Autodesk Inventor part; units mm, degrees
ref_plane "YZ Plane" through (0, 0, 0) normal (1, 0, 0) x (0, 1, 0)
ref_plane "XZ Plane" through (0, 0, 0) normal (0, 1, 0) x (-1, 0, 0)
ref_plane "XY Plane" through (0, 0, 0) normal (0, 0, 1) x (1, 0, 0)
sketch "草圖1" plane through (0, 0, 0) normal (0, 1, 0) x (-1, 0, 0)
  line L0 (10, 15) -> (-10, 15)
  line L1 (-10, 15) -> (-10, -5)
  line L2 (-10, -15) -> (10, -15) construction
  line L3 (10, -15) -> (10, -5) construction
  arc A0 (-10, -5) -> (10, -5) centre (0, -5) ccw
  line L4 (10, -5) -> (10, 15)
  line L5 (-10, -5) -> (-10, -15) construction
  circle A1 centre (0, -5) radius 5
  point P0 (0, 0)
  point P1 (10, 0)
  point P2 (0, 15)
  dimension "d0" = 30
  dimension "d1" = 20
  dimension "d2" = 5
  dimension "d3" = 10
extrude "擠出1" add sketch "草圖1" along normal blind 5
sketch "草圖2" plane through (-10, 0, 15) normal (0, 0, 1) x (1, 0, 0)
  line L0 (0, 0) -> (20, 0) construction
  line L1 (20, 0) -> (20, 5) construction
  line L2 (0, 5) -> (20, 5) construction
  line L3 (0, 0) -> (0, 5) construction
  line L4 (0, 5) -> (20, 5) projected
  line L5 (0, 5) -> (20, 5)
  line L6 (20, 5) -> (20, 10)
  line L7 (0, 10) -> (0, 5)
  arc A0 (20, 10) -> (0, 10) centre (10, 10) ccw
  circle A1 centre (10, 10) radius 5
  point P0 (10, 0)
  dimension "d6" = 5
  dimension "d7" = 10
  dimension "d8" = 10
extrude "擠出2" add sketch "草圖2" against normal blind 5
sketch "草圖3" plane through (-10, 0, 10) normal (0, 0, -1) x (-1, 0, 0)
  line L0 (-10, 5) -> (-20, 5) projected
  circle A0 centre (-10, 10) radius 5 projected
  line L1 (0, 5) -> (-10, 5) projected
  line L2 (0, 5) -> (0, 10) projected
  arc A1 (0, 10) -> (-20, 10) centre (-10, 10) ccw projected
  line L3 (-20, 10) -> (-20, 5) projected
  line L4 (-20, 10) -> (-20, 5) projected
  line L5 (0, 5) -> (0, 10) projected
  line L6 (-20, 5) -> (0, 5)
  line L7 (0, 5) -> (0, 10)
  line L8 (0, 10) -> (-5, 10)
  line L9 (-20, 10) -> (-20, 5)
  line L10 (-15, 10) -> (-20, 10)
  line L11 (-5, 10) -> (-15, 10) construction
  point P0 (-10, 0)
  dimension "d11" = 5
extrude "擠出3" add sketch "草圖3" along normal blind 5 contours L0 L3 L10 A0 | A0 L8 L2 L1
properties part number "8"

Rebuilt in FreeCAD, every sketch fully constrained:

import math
import FreeCAD as App
import Part
import Sketcher

V = App.Vector
Q = App.Units.Quantity

doc = App.newDocument("Part")
body = doc.addObject("PartDesign::Body", "Body")

sketch1 = body.newObject("Sketcher::SketchObject", "Sketch")
sketch1.AttachmentSupport = (doc.getObject("XZ_Plane"), [""])
sketch1.MapMode = "FlatFace"
sketch1.addGeometry([
    Part.LineSegment(V(-10, -5, 0), V(-10, 15, 0)),
    Part.LineSegment(V(-10, 15, 0), V(10, 15, 0)),
    Part.LineSegment(V(10, 15, 0), V(10, -5, 0)),
    Part.ArcOfCircle(Part.Circle(V(0, -5, 0), V(0, 0, 1), 10), math.radians(180), math.radians(360)),
    Part.Circle(V(0, -5, 0), V(0, 0, 1), 5),
], False)
sketch1.addConstraint([
    Sketcher.Constraint("Coincident", 0, 2, 1, 1),
    Sketcher.Constraint("Coincident", 1, 2, 2, 1),
    Sketcher.Constraint("Tangent", 2, 2, 3, 2),
    Sketcher.Constraint("Tangent", 3, 1, 0, 1),
    Sketcher.Constraint("Vertical", 0),
    Sketcher.Constraint("Horizontal", 1),
    Sketcher.Constraint("Vertical", 2),
    Sketcher.Constraint("Coincident", 4, 3, 3, 3),
    Sketcher.Constraint("PointOnObject", 3, 3, -2),
    Sketcher.Constraint("Equal", 1, 0),
    Sketcher.Constraint("Diameter", 4, Q("10 mm")),
    Sketcher.Constraint("Radius", 3, Q("10 mm")),
    Sketcher.Constraint("DistanceY", 3, 3, -1, 1, Q("5 mm")),
])
pad1 = body.newObject("PartDesign::Pad", "Pad")
pad1.Profile = sketch1
pad1.Length = 5
pad1.Reversed = True

sketch2 = body.newObject("Sketcher::SketchObject", "Sketch001")
sketch2.AttachmentSupport = (doc.getObject("XY_Plane"), [""])
sketch2.MapMode = "FlatFace"
sketch2.AttachmentOffset = App.Placement(V(0, 0, 15), App.Rotation())
sketch2.addGeometry([
    Part.LineSegment(V(-10, 10, 0), V(-10, 5, 0)),
    Part.LineSegment(V(-10, 5, 0), V(0, 5, 0)),
    Part.LineSegment(V(0, 5, 0), V(10, 5, 0)),
    Part.LineSegment(V(10, 5, 0), V(10, 10, 0)),
    Part.ArcOfCircle(Part.Circle(V(0, 10, 0), V(0, 0, 1), 10), math.radians(0), math.radians(180)),
    Part.Circle(V(0, 10, 0), V(0, 0, 1), 5),
], False)
sketch2.addConstraint([
    Sketcher.Constraint("Coincident", 0, 2, 1, 1),
    Sketcher.Constraint("Coincident", 1, 2, 2, 1),
    Sketcher.Constraint("Coincident", 2, 2, 3, 1),
    Sketcher.Constraint("Tangent", 3, 2, 4, 1),
    Sketcher.Constraint("Tangent", 4, 2, 0, 1),
    Sketcher.Constraint("Vertical", 0),
    Sketcher.Constraint("Horizontal", 1),
    Sketcher.Constraint("Horizontal", 2),
    Sketcher.Constraint("Vertical", 3),
    Sketcher.Constraint("Coincident", 5, 3, 4, 3),
    Sketcher.Constraint("PointOnObject", 4, 3, -2),
    Sketcher.Constraint("PointOnObject", 1, 2, -2),
    Sketcher.Constraint("Diameter", 5, Q("10 mm")),
    Sketcher.Constraint("Radius", 4, Q("10 mm")),
    Sketcher.Constraint("DistanceY", 0, 2, 0, 1, Q("5 mm")),
    Sketcher.Constraint("DistanceY", -1, 1, 4, 3, Q("10 mm")),
])
pad2 = body.newObject("PartDesign::Pad", "Pad001")
pad2.Profile = sketch2
pad2.Length = 5
pad2.Reversed = True

sketch3 = body.newObject("Sketcher::SketchObject", "Sketch002")
sketch3.AttachmentSupport = (doc.getObject("XY_Plane"), [""])
sketch3.MapMode = "FlatFace"
sketch3.AttachmentOffset = App.Placement(V(0, 0, 10), App.Rotation())
sketch3.addGeometry([
    Part.LineSegment(V(10, 5, 0), V(0, 5, 0)),
    Part.ArcOfCircle(Part.Circle(V(0, 10, 0), V(0, 0, 1), 5), math.radians(-90), math.radians(0)),
    Part.LineSegment(V(5, 10, 0), V(10, 10, 0)),
    Part.LineSegment(V(10, 10, 0), V(10, 5, 0)),
    Part.ArcOfCircle(Part.Circle(V(0, 10, 0), V(0, 0, 1), 5), math.radians(180), math.radians(270)),
    Part.LineSegment(V(0, 5, 0), V(-10, 5, 0)),
    Part.LineSegment(V(-10, 5, 0), V(-10, 10, 0)),
    Part.LineSegment(V(-10, 10, 0), V(-5, 10, 0)),
], False)
sketch3.addConstraint([
    Sketcher.Constraint("Tangent", 0, 2, 1, 1),
    Sketcher.Constraint("Coincident", 1, 2, 2, 1),
    Sketcher.Constraint("Coincident", 2, 2, 3, 1),
    Sketcher.Constraint("Coincident", 3, 2, 0, 1),
    Sketcher.Constraint("Tangent", 4, 2, 5, 1),
    Sketcher.Constraint("Coincident", 5, 2, 6, 1),
    Sketcher.Constraint("Coincident", 6, 2, 7, 1),
    Sketcher.Constraint("Coincident", 7, 2, 4, 1),
    Sketcher.Constraint("Horizontal", 0),
    Sketcher.Constraint("Horizontal", 2),
    Sketcher.Constraint("Vertical", 3),
    Sketcher.Constraint("Horizontal", 5),
    Sketcher.Constraint("Vertical", 6),
    Sketcher.Constraint("Horizontal", 7),
    Sketcher.Constraint("Coincident", 4, 3, 1, 3),
    Sketcher.Constraint("Equal", 1, 4),
    Sketcher.Constraint("Symmetric", 2, 2, 6, 2, -2),
    Sketcher.Constraint("PointOnObject", 1, 3, -2),
    Sketcher.Constraint("Horizontal", 4, 3, 1, 2),
    Sketcher.Constraint("Equal", 7, 3),
    Sketcher.Constraint("Radius", 1, Q("5 mm")),
    Sketcher.Constraint("DistanceY", -1, 1, 0, 2, Q("5 mm")),
])
pad3 = body.newObject("PartDesign::Pad", "Pad002")
pad3.Profile = sketch3
pad3.Length = 5
pad3.Reversed = True

doc.recompute()
